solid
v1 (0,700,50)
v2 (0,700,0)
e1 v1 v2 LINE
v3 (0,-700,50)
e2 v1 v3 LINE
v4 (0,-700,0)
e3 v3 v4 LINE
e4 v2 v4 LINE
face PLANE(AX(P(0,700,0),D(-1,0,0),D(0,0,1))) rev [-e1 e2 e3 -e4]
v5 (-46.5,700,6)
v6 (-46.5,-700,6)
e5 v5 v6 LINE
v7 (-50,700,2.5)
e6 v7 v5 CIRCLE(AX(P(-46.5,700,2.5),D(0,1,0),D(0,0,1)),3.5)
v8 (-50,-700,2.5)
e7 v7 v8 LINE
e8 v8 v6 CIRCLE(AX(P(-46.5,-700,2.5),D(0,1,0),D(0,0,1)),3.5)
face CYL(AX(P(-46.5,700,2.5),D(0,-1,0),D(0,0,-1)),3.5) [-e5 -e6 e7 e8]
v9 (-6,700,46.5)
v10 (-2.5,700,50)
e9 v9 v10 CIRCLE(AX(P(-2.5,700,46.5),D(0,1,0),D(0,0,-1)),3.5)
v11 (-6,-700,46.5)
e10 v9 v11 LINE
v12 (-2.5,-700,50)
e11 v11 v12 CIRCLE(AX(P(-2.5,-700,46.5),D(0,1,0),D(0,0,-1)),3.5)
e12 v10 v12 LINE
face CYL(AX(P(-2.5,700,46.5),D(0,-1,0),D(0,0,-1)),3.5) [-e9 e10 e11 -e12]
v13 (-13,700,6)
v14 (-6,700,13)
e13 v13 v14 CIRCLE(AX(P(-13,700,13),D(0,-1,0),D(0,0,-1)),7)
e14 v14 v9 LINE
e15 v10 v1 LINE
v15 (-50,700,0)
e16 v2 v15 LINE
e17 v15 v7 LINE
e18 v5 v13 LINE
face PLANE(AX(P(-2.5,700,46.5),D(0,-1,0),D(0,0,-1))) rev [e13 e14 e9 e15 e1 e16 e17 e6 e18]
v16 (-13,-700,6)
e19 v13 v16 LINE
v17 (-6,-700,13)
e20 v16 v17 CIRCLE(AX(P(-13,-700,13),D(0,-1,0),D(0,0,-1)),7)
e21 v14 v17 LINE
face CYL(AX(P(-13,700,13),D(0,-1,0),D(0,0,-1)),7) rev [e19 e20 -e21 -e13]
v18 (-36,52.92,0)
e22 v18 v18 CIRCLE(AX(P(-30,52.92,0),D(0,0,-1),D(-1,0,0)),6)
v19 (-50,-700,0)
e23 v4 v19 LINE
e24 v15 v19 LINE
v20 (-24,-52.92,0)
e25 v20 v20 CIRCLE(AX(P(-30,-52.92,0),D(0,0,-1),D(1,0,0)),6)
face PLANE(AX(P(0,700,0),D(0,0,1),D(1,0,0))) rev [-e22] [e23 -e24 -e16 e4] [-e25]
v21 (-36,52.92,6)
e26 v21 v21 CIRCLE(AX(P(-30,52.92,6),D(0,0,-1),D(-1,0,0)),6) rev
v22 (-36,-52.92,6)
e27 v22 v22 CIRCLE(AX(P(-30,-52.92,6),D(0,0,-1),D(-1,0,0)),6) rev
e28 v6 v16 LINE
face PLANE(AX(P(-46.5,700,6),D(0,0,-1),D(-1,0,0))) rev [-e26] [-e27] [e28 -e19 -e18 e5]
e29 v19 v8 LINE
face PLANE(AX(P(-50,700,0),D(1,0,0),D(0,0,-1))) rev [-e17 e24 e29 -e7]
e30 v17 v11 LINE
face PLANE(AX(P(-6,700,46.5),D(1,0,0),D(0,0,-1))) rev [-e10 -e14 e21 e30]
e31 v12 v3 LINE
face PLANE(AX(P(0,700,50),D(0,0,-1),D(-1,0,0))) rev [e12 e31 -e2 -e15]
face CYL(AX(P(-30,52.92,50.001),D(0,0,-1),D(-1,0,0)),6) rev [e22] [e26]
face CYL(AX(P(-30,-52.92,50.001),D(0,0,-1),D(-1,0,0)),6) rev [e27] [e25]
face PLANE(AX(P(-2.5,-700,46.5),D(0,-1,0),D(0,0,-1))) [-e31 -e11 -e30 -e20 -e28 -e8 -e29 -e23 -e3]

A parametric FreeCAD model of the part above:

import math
import FreeCAD as App
import Part
import Sketcher

V = App.Vector

doc = App.newDocument("Part")
body = doc.addObject("PartDesign::Body", "Body")

# Sketch on XZ plane
sketch1 = body.newObject("Sketcher::SketchObject", "Sketch")
sketch1.AttachmentSupport = (doc.getObject("XZ_Plane"), [""])
sketch1.MapMode = "FlatFace"
sketch1.addGeometry([
    Part.LineSegment(V(0, 0, 0), V(-50, 0, 0)),  # 0
    Part.LineSegment(V(-50, 0, 0), V(-50, 2.5, 0)),  # 1
    Part.ArcOfCircle(Part.Circle(V(-46.5, 2.5, 0), V(0, 0, 1), 3.5), math.radians(90), math.radians(180)),  # 2
    Part.LineSegment(V(-46.5, 6, 0), V(-13, 6, 0)),  # 3
    Part.ArcOfCircle(Part.Circle(V(-13, 13, 0), V(0, 0, 1), 7), math.radians(-90), math.radians(0)),  # 4
    Part.LineSegment(V(-6, 13, 0), V(-6, 46.5, 0)),  # 5
    Part.ArcOfCircle(Part.Circle(V(-2.5, 46.5, 0), V(0, 0, 1), 3.5), math.radians(90), math.radians(180)),  # 6
    Part.LineSegment(V(-2.5, 50, 0), V(0, 50, 0)),  # 7
    Part.LineSegment(V(0, 50, 0), V(0, 0, 0)),  # 8
], False)
sketch1.addConstraint([
    Sketcher.Constraint("Coincident", 0, 2, 1, 1),
    Sketcher.Constraint("Tangent", 1, 2, 2, 2),
    Sketcher.Constraint("Tangent", 2, 1, 3, 1),
    Sketcher.Constraint("Tangent", 3, 2, 4, 1),
    Sketcher.Constraint("Tangent", 4, 2, 5, 1),
    Sketcher.Constraint("Tangent", 5, 2, 6, 2),
    Sketcher.Constraint("Tangent", 6, 1, 7, 1),
    Sketcher.Constraint("Coincident", 7, 2, 8, 1),
    Sketcher.Constraint("Coincident", 8, 2, 0, 1),
    Sketcher.Constraint("Horizontal", 0),
    Sketcher.Constraint("Vertical", 1),
    Sketcher.Constraint("Horizontal", 3),
    Sketcher.Constraint("Vertical", 5),
    Sketcher.Constraint("Horizontal", 7),
    Sketcher.Constraint("Vertical", 8),
    Sketcher.Constraint("Coincident", 8, 2, -1, 1),
    Sketcher.Constraint("Equal", 2, 6),
    Sketcher.Constraint("Equal", 7, 1),
    Sketcher.Constraint("Equal", 3, 5),
    Sketcher.Constraint("Radius", 4, 7.0),
    Sketcher.Constraint("Radius", 2, 3.5),
    Sketcher.Constraint("DistanceX", 0, 2, 0, 1, 50.0),
    Sketcher.Constraint("DistanceX", 3, 1, 3, 2, 33.5),
])
pad1 = body.newObject("PartDesign::Pad", "Pad")
pad1.Profile = sketch1
pad1.Length = 1400
pad1.Midplane = True

# Sketch on XY plane
sketch2 = body.newObject("Sketcher::SketchObject", "Sketch001")
sketch2.AttachmentSupport = (doc.getObject("XY_Plane"), [""])
sketch2.MapMode = "FlatFace"
sketch2.addGeometry(Part.Circle(V(-30, 53, 0), V(0, 0, 1), 6), False)
sketch2.addConstraint([
    Sketcher.Constraint("Diameter", 0, 12.0),
    Sketcher.Constraint("DistanceX", 0, 3, -1, 1, 30.0),
    Sketcher.Constraint("DistanceY", -1, 1, 0, 3, 52.92),
])
pocket1 = body.newObject("PartDesign::Pocket", "Pocket")
pocket1.Profile = sketch2
pocket1.Type = "UpToFirst"
pocket1.Reversed = True

# Sketch on XY plane
sketch3 = body.newObject("Sketcher::SketchObject", "Sketch002")
sketch3.AttachmentSupport = (doc.getObject("XY_Plane"), [""])
sketch3.MapMode = "FlatFace"
sketch3.addGeometry(Part.Circle(V(-30, -53, 0), V(0, 0, 1), 6), False)
sketch3.addConstraint([
    Sketcher.Constraint("Diameter", 0, 12.0),
    Sketcher.Constraint("DistanceX", 0, 3, -1, 1, 30.0),
    Sketcher.Constraint("DistanceY", 0, 3, -1, 1, 52.92),
])
pocket2 = body.newObject("PartDesign::Pocket", "Pocket001")
pocket2.Profile = sketch3
pocket2.Type = "UpToFirst"
pocket2.Reversed = True

doc.recompute()
